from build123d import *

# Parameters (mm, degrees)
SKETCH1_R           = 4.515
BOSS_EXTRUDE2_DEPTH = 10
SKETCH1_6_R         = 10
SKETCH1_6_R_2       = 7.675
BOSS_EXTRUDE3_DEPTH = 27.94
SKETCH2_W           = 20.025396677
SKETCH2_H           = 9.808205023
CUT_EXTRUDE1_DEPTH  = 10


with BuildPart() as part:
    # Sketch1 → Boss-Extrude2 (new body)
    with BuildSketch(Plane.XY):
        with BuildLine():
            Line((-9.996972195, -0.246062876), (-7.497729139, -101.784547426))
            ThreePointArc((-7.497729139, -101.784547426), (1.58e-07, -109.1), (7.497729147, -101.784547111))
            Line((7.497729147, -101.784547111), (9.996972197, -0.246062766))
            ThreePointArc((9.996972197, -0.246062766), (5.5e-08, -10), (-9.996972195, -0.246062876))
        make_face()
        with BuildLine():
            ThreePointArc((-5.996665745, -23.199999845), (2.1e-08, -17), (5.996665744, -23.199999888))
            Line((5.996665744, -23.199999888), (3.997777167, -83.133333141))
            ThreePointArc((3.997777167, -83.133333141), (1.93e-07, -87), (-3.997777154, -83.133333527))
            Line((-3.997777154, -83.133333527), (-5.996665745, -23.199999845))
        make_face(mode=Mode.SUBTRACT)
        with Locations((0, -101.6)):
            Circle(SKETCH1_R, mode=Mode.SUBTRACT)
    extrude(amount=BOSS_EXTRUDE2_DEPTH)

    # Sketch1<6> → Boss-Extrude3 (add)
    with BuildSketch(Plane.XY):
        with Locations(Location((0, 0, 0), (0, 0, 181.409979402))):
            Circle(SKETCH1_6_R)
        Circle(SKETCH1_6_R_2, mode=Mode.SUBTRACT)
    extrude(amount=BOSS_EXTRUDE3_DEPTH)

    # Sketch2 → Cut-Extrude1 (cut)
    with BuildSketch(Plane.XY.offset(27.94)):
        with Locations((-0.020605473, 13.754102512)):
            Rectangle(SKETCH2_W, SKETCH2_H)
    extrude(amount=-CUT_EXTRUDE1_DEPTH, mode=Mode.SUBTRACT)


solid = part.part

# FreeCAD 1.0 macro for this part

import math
import FreeCAD as App
import Part
import Sketcher
from FreeCAD import Vector
Q = App.Units.Quantity

doc = App.newDocument("Part")
params = doc.addObject("Spreadsheet::Sheet", "Params")
for row, (alias, value) in enumerate([
    ("sketch1_radius", "10 mm"),
    ("sketch1_radius2", "6 mm"),
    ("sketch1_radius3", "4 mm"),
    ("sketch1_radius4", "7.5 mm"),
    ("sketch1_diameter", "9.03 mm"),
    ("pad1_length", "10 mm"),
    ("sketch2_diameter", "20 mm"),
    ("sketch2_diameter2", "15.35 mm"),
    ("pad2_length", "27.94 mm"),
    ("pocket1_length", "10 mm"),
], start=1):
    params.set(f"A{row}", alias)
    params.set(f"B{row}", "=" + value)
    params.setAlias(f"B{row}", alias)

body = doc.addObject("PartDesign::Body", "Body")

# Sketch on XY plane
sketch1 = body.newObject("Sketcher::SketchObject", "Sketch")
sketch1.AttachmentSupport = (doc.getObject("XY_Plane"), [""])
sketch1.MapMode = "FlatFace"
sketch1.addGeometry([
    Part.LineSegment(Vector(-10, -0.2, 0), Vector(-7.5, -101.8, 0)),  # 0
    Part.ArcOfCircle(Part.Circle(Vector(0, -101.6, 0), Vector(0, 0, 1), 7.5), math.radians(-179), math.radians(-1)),  # 1
    Part.LineSegment(Vector(7.5, -101.8, 0), Vector(10, -0.2, 0)),  # 2
    Part.ArcOfCircle(Part.Circle(Vector(0, 0, 0), Vector(0, 0, 1), 10), math.radians(-179), math.radians(-1)),  # 3
    Part.Circle(Vector(0, -101.6, 0), Vector(0, 0, 1), 4.5),  # 4
    Part.LineSegment(Vector(-4, -83.1, 0), Vector(-6, -23.2, 0)),  # 5
    Part.ArcOfCircle(Part.Circle(Vector(0, -23, 0), Vector(0, 0, 1), 6), math.radians(-2), math.radians(182)),  # 6
    Part.LineSegment(Vector(6, -23.2, 0), Vector(4, -83.1, 0)),  # 7
    Part.ArcOfCircle(Part.Circle(Vector(0, -83, 0), Vector(0, 0, 1), 4), math.radians(-178), math.radians(-2)),  # 8
], False)
sketch1.addConstraint([
    Sketcher.Constraint("Tangent", 0, 2, 1, 1),
    Sketcher.Constraint("Tangent", 1, 2, 2, 1),
    Sketcher.Constraint("Tangent", 2, 2, 3, 2),
    Sketcher.Constraint("Tangent", 3, 1, 0, 1),
    Sketcher.Constraint("Tangent", 5, 2, 6, 2),
    Sketcher.Constraint("Tangent", 6, 1, 7, 1),
    Sketcher.Constraint("Tangent", 7, 2, 8, 2),
    Sketcher.Constraint("Tangent", 8, 1, 5, 1),
    Sketcher.Constraint("Coincident", 3, 3, -1, 1),
    Sketcher.Constraint("Coincident", 4, 3, 1, 3),
    Sketcher.Constraint("Symmetric", 5, 2, 6, 1, -2),
    Sketcher.Constraint("PointOnObject", 1, 3, -2),
    Sketcher.Constraint("Radius", 3, Q("10 mm")),
    Sketcher.Constraint("Radius", 6, Q("6 mm")),
    Sketcher.Constraint("Radius", 8, Q("4 mm")),
    Sketcher.Constraint("Radius", 1, Q("7.5 mm")),
    Sketcher.Constraint("Diameter", 4, Q("9.03 mm")),
    Sketcher.Constraint("DistanceY", 6, 3, -1, 1, Q("23 mm")),
    Sketcher.Constraint("DistanceY", 8, 3, -1, 1, Q("83 mm")),
    Sketcher.Constraint("DistanceY", 1, 3, -1, 1, Q("101.6 mm")),
])
sketch1.setExpression("Constraints[12]", "Params.sketch1_radius")
sketch1.setExpression("Constraints[13]", "Params.sketch1_radius2")
sketch1.setExpression("Constraints[14]", "Params.sketch1_radius3")
sketch1.setExpression("Constraints[15]", "Params.sketch1_radius4")
sketch1.setExpression("Constraints[16]", "Params.sketch1_diameter")
pad1 = body.newObject("PartDesign::Pad", "Pad")
pad1.Profile = sketch1
pad1.setExpression("Length", "Params.pad1_length")

# Sketch on XY plane
sketch2 = body.newObject("Sketcher::SketchObject", "Sketch001")
sketch2.AttachmentSupport = (doc.getObject("XY_Plane"), [""])
sketch2.MapMode = "FlatFace"
sketch2.addGeometry([
    Part.Circle(Vector(0, 0, 0), Vector(0, 0, 1), 10),
    Part.Circle(Vector(0, 0, 0), Vector(0, 0, 1), 8),
], False)
sketch2.addConstraint([
    Sketcher.Constraint("Coincident", 0, 3, -1, 1),
    Sketcher.Constraint("Coincident", 1, 3, -1, 1),
    Sketcher.Constraint("Diameter", 0, Q("20 mm")),
    Sketcher.Constraint("Diameter", 1, Q("15.35 mm")),
])
sketch2.setExpression("Constraints[2]", "Params.sketch2_diameter")
sketch2.setExpression("Constraints[3]", "Params.sketch2_diameter2")
pad2 = body.newObject("PartDesign::Pad", "Pad001")
pad2.Profile = sketch2
pad2.setExpression("Length", "Params.pad2_length")

# Sketch on XY plane
sketch3 = body.newObject("Sketcher::SketchObject", "Sketch002")
sketch3.AttachmentSupport = (doc.getObject("XY_Plane"), [""])
sketch3.MapMode = "FlatFace"
sketch3.AttachmentOffset = App.Placement(Vector(0, 0, 27.94), App.Rotation())
sketch3.addGeometry([
    Part.LineSegment(Vector(-10, 19, 0), Vector(-10, 9, 0)),
    Part.LineSegment(Vector(-10, 9, 0), Vector(10, 9, 0)),
    Part.LineSegment(Vector(10, 9, 0), Vector(10, 19, 0)),
    Part.LineSegment(Vector(10, 19, 0), Vector(-10, 19, 0)),
], False)
sketch3.addConstraint([
    Sketcher.Constraint("Coincident", 0, 2, 1, 1),
    Sketcher.Constraint("Coincident", 1, 2, 2, 1),
    Sketcher.Constraint("Coincident", 2, 2, 3, 1),
    Sketcher.Constraint("Coincident", 3, 2, 0, 1),
    Sketcher.Constraint("Vertical", 0),
    Sketcher.Constraint("Horizontal", 1),
    Sketcher.Constraint("Vertical", 2),
    Sketcher.Constraint("Horizontal", 3),
    Sketcher.Constraint("DistanceY", -1, 1, 0, 2, Q("8.85 mm")),
    Sketcher.Constraint("DistanceX", 1, 1, 1, 2, Q("20.025397 mm")),
    Sketcher.Constraint("DistanceY", 0, 2, 0, 1, Q("9.808205 mm")),
    Sketcher.Constraint("DistanceX", 0, 2, -1, 1, Q("10.033304 mm")),
])
pocket1 = body.newObject("PartDesign::Pocket", "Pocket")
pocket1.Profile = sketch3
pocket1.setExpression("Length", "Params.pocket1_length")

doc.recompute()
